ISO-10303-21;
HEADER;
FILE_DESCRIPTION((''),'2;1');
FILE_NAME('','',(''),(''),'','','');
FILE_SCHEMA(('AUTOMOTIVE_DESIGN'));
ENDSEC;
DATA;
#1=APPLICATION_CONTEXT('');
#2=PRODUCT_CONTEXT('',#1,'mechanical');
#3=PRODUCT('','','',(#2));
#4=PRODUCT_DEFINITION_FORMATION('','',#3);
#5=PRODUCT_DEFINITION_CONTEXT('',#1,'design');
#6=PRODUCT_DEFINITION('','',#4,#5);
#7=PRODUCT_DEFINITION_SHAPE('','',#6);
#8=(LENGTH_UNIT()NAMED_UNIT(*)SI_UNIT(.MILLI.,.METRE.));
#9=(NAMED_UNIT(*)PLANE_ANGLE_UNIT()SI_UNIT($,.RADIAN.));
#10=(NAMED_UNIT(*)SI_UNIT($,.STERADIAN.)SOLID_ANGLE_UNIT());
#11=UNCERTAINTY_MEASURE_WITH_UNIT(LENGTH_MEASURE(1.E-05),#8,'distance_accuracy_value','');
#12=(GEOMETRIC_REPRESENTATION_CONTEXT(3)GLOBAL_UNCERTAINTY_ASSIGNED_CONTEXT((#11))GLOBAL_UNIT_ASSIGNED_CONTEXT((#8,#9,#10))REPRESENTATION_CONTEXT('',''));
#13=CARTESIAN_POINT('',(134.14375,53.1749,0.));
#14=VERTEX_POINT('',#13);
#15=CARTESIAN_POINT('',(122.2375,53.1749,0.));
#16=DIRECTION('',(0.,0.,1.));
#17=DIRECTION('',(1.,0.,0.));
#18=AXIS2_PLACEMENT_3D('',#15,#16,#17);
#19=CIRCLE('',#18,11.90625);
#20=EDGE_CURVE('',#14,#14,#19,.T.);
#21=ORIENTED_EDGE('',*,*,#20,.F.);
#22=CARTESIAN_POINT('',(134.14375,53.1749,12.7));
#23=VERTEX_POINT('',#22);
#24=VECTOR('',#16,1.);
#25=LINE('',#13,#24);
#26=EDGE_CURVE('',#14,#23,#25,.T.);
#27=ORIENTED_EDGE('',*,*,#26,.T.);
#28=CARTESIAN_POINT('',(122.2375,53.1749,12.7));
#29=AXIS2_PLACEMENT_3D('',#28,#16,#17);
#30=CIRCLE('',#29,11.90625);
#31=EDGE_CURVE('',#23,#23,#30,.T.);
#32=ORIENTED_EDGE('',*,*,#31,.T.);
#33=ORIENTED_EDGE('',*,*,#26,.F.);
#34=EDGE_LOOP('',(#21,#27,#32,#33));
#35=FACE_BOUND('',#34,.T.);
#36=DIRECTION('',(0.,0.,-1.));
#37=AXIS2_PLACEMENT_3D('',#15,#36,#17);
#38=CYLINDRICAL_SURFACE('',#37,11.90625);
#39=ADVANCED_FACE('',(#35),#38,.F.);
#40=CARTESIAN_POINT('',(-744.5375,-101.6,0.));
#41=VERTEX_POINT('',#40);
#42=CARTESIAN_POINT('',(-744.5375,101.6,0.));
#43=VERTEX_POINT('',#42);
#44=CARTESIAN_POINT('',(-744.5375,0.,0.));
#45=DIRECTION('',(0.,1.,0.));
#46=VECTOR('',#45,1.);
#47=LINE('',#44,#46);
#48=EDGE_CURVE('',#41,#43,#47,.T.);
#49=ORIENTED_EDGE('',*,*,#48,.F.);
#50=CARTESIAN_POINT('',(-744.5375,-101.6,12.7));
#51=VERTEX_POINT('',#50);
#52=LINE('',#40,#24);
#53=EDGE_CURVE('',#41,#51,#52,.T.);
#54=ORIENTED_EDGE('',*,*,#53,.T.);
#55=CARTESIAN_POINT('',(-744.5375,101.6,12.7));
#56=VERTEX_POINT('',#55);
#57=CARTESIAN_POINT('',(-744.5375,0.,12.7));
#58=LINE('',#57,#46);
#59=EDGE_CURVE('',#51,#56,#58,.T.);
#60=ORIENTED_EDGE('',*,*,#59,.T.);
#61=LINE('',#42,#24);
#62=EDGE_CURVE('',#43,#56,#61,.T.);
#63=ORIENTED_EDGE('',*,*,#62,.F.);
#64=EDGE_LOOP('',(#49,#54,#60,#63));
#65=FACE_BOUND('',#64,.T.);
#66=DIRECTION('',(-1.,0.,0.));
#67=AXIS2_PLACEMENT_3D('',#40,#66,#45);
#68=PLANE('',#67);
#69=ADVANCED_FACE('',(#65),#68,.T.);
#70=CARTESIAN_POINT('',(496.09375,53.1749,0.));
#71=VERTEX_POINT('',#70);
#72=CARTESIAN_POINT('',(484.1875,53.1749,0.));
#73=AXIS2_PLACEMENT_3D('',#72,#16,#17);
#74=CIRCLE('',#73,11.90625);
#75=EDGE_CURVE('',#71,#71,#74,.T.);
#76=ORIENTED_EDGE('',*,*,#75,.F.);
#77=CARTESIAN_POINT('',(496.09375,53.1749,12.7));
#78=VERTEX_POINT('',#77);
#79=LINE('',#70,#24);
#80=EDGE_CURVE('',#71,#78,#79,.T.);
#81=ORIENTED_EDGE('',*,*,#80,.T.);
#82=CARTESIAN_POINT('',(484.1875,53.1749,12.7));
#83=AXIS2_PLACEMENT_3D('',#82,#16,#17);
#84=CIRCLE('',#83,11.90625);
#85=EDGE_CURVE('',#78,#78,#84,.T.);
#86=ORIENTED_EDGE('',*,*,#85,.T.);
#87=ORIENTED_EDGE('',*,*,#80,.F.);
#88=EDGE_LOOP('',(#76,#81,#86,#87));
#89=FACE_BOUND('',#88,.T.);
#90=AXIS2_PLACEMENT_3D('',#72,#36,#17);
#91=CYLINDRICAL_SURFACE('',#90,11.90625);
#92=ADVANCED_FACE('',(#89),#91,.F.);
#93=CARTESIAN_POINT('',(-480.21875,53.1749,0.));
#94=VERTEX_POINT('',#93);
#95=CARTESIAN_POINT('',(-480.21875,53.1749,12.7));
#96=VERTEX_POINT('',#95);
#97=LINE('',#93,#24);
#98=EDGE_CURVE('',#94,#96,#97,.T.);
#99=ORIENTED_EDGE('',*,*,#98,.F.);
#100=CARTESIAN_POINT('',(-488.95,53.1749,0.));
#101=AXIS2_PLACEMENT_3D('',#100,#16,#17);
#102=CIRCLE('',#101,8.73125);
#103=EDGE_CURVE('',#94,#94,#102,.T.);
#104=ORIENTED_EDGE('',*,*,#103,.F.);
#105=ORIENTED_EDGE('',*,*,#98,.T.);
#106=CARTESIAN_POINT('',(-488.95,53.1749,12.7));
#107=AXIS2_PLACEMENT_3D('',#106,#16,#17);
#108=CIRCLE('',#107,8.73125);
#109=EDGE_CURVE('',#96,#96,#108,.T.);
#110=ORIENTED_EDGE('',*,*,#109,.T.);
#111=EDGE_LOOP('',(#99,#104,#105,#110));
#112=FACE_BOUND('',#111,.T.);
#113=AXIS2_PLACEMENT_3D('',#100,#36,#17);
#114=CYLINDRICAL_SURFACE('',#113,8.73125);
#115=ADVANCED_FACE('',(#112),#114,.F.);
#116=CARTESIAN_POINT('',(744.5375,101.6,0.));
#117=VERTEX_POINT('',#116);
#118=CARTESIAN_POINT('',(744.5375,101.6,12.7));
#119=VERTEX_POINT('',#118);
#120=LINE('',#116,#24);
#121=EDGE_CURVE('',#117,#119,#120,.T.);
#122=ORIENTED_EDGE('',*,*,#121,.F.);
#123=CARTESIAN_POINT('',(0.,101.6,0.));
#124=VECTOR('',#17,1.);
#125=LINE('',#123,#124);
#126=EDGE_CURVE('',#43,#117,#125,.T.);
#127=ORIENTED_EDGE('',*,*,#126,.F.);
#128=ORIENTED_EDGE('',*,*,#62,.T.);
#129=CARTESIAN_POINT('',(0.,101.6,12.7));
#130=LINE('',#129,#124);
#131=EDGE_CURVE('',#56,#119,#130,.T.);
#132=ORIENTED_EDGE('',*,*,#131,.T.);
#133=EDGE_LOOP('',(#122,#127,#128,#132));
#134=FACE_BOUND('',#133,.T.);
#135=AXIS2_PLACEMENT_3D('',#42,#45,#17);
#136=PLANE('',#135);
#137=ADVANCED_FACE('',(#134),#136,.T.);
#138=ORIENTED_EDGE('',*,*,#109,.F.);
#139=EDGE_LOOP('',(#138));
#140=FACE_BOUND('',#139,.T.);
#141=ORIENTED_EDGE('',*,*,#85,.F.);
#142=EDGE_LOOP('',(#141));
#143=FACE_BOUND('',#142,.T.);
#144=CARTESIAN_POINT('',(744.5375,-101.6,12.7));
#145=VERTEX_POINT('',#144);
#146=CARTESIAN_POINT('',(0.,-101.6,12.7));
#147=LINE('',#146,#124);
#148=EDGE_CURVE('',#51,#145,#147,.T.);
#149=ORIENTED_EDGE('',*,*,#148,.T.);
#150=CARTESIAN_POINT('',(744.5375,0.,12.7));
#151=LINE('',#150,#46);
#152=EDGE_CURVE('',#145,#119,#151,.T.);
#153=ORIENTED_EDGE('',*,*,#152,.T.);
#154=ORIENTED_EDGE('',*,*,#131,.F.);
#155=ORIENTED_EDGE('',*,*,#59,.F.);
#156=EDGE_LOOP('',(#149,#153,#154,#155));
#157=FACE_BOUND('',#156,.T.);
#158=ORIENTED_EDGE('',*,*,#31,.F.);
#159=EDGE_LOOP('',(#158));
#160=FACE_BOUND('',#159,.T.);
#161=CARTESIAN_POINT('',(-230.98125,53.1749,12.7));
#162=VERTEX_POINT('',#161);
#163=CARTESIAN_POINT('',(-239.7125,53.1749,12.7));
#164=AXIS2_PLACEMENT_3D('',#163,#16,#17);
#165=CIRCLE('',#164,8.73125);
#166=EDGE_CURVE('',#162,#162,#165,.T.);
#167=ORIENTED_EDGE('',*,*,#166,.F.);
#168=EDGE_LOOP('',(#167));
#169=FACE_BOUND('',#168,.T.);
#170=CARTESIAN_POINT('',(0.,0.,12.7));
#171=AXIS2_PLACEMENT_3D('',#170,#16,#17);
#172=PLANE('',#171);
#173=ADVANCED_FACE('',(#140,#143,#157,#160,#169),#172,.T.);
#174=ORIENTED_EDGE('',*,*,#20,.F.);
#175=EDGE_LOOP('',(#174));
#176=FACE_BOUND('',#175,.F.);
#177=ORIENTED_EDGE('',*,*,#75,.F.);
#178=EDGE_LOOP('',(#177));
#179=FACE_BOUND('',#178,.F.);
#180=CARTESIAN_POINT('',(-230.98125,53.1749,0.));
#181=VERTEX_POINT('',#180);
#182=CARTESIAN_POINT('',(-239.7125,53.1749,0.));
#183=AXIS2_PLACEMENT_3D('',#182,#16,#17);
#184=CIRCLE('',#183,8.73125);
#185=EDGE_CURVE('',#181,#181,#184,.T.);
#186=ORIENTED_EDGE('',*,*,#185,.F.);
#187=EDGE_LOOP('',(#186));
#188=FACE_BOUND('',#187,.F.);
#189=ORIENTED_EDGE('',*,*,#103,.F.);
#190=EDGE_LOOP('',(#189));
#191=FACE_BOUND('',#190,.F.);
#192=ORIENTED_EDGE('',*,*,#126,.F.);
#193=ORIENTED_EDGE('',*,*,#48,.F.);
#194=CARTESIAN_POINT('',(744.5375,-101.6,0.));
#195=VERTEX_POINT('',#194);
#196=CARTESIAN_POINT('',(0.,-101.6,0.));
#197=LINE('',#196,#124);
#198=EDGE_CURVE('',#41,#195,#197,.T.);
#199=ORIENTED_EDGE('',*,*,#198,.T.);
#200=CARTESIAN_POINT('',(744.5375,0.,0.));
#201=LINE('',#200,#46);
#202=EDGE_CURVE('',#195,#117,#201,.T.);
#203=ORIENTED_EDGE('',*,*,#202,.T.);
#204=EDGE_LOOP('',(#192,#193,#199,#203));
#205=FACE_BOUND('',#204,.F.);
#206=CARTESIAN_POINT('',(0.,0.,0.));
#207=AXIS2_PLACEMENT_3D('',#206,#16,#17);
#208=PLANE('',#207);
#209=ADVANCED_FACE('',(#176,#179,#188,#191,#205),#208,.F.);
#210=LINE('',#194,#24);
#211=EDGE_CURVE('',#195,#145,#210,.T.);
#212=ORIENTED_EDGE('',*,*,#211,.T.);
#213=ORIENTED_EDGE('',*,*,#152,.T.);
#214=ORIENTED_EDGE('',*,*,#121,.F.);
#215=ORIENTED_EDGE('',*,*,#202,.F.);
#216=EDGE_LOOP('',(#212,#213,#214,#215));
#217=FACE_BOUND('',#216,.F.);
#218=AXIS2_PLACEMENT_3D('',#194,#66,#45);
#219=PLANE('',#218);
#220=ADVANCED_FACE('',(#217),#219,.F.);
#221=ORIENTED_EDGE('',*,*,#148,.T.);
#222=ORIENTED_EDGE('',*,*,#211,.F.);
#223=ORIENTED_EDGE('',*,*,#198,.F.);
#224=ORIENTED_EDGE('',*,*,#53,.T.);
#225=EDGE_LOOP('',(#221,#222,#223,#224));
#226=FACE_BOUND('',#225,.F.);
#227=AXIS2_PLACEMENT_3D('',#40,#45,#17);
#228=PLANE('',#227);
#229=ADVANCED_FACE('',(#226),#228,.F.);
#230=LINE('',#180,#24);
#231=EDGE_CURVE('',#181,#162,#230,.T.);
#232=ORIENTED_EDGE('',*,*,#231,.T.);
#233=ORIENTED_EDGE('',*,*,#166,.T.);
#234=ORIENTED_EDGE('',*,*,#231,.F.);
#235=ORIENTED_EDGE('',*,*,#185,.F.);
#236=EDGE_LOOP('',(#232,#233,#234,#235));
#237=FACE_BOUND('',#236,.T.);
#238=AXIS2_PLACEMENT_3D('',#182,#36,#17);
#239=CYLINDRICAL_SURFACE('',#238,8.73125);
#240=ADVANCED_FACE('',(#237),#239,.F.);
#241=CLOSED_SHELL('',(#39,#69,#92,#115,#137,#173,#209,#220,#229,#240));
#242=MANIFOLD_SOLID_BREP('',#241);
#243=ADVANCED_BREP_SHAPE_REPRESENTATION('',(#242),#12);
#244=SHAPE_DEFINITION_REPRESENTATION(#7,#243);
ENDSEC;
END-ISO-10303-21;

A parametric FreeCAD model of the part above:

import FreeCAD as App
import Part
import Sketcher
Q = App.Units.Quantity

doc = App.newDocument("Part")
body = doc.addObject("PartDesign::Body", "Body")

sketch1 = body.newObject("Sketcher::SketchObject", "Sketch")
sketch1.AttachmentSupport = (doc.getObject("XY_Plane"), [""])
sketch1.MapMode = "FlatFace"
sketch1.addGeometry([
    Part.LineSegment(App.Vector(-745, 102, 0), App.Vector(-745, -102, 0)),
    Part.LineSegment(App.Vector(-745, -102, 0), App.Vector(745, -102, 0)),
    Part.LineSegment(App.Vector(745, -102, 0), App.Vector(745, 102, 0)),
    Part.LineSegment(App.Vector(745, 102, 0), App.Vector(-745, 102, 0)),
    Part.Circle(App.Vector(122, 53, 0), App.Vector(0, 0, 1), 12),
    Part.Circle(App.Vector(-489, 53, 0), App.Vector(0, 0, 1), 9),
    Part.Circle(App.Vector(-240, 53, 0), App.Vector(0, 0, 1), 9),
    Part.Circle(App.Vector(484, 53, 0), App.Vector(0, 0, 1), 12),
], False)
sketch1.addConstraint([
    Sketcher.Constraint("Coincident", 0, 2, 1, 1),
    Sketcher.Constraint("Coincident", 1, 2, 2, 1),
    Sketcher.Constraint("Coincident", 2, 2, 3, 1),
    Sketcher.Constraint("Coincident", 3, 2, 0, 1),
    Sketcher.Constraint("Vertical", 0),
    Sketcher.Constraint("Horizontal", 1),
    Sketcher.Constraint("Vertical", 2),
    Sketcher.Constraint("Horizontal", 3),
    Sketcher.Constraint("Equal", 5, 6),
    Sketcher.Constraint("Equal", 4, 7),
    Sketcher.Constraint("Symmetric", 0, 2, 2, 2, -1, 1),
    Sketcher.Constraint("Horizontal", 4, 3, 5, 3),
    Sketcher.Constraint("Horizontal", 5, 3, 6, 3),
    Sketcher.Constraint("Horizontal", 6, 3, 7, 3),
    Sketcher.Constraint("DistanceY", 0, 2, 0, 1, Q("8 in")),
    Sketcher.Constraint("Diameter", 4, Q("0.9375 in")),
    Sketcher.Constraint("Diameter", 5, Q("0.6875 in")),
    Sketcher.Constraint("DistanceX", 6, 3, 7, 3, Q("28.5 in")),
    Sketcher.Constraint("DistanceX", 4, 3, 1, 2, Q("24.5 in")),
    Sketcher.Constraint("DistanceX", 1, 1, 1, 2, Q("58.625 in")),
    Sketcher.Constraint("DistanceX", 5, 3, -1, 1, Q("19.25 in")),
    Sketcher.Constraint("DistanceX", 6, 3, 4, 3, Q("14.25 in")),
    Sketcher.Constraint("DistanceY", -1, 1, 4, 3, Q("2.0935 in")),
])
pad1 = body.newObject("PartDesign::Pad", "Pad")
pad1.Profile = sketch1
pad1.Length = Q("0.5 in")

doc.recompute()
